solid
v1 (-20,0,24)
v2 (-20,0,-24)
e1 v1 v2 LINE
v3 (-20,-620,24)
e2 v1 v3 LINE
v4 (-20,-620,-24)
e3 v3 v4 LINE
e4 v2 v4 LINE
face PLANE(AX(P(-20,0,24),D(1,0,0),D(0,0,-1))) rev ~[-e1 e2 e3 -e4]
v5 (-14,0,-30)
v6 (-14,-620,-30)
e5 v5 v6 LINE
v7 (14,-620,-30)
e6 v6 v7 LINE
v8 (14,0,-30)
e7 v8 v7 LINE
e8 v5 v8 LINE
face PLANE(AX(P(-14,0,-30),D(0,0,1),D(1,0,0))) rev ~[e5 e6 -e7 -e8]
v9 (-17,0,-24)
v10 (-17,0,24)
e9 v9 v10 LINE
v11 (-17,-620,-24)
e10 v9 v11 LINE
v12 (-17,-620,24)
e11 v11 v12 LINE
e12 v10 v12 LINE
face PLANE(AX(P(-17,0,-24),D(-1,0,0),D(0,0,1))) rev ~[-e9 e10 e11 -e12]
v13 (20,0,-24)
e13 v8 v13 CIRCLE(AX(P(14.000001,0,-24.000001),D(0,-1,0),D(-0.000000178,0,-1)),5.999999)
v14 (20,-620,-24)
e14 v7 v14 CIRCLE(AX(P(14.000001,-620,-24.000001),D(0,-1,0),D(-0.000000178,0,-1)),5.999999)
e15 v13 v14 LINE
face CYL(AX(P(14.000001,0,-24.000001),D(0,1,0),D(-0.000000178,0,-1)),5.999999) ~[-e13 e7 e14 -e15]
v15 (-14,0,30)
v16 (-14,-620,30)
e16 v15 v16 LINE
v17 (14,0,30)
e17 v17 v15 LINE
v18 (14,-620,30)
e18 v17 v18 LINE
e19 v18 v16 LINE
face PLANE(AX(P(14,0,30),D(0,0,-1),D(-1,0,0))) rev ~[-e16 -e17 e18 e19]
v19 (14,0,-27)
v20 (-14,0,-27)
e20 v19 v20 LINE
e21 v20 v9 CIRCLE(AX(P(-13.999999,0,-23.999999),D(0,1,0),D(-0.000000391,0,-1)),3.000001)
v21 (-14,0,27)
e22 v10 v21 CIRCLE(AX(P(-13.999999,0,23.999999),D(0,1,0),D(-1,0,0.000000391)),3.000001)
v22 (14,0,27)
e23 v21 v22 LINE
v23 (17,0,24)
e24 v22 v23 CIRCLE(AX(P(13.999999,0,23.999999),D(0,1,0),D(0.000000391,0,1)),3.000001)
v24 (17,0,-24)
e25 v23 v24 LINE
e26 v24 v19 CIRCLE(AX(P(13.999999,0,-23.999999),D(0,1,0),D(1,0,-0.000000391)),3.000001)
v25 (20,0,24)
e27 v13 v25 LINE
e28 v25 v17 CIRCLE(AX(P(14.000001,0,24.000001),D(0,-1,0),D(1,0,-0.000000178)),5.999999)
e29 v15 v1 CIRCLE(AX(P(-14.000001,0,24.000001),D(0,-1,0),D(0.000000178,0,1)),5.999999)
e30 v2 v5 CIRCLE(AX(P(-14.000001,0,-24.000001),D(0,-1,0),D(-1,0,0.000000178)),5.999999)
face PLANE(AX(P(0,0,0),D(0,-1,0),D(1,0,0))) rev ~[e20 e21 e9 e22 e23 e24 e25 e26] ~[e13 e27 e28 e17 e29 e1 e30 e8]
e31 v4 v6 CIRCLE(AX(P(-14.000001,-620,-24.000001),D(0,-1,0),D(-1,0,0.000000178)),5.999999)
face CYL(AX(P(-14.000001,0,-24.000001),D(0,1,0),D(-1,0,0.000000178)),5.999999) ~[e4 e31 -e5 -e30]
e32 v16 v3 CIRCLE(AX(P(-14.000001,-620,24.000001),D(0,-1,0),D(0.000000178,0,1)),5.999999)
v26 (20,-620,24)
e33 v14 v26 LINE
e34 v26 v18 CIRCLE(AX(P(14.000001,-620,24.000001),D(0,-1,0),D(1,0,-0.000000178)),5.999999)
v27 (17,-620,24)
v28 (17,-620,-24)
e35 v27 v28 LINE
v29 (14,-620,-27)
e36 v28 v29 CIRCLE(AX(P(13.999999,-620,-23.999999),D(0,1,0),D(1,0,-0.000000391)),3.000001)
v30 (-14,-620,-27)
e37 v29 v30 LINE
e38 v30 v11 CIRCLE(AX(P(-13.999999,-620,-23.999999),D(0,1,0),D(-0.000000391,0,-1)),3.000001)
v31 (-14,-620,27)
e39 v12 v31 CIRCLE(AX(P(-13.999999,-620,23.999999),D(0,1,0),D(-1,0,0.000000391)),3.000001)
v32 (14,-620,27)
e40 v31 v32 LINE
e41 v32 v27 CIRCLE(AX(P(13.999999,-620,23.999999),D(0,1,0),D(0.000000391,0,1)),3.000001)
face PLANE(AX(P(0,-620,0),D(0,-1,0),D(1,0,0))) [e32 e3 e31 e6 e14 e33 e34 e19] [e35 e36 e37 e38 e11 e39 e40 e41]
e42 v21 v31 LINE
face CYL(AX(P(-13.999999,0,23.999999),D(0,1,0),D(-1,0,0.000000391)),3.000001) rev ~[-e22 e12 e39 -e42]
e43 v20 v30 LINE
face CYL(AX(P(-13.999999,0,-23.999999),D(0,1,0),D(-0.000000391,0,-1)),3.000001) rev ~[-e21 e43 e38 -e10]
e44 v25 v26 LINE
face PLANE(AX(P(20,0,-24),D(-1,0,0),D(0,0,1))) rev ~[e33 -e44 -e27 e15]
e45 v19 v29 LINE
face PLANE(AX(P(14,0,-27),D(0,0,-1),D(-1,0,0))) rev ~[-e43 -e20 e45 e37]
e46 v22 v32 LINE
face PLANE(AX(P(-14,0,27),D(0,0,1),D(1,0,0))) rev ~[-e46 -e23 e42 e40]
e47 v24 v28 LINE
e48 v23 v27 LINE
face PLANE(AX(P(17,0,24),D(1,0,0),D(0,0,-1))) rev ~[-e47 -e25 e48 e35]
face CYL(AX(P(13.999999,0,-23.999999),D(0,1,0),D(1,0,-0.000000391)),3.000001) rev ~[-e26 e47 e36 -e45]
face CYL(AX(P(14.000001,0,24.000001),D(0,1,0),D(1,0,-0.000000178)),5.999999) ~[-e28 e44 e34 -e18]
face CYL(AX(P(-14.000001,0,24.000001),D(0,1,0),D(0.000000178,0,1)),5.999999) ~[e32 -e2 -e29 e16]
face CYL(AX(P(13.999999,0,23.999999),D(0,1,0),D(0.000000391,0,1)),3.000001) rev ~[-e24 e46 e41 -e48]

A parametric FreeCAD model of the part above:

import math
import FreeCAD as App
import Part
import Sketcher
Q = App.Units.Quantity

doc = App.newDocument("Part")
body = doc.addObject("PartDesign::Body", "Body")

sketch1 = doc.addObject("Sketcher::SketchObject", "Sketch")
body.addObject(sketch1)
sketch1.AttachmentSupport = (doc.XZ_Plane, [""])
sketch1.MapMode = "FlatFace"
sketch1.addGeometry(Part.LineSegment(App.Vector(14, 30, 0), App.Vector(-14, 30, 0)), False)
sketch1.addGeometry(Part.ArcOfCircle(Part.Circle(App.Vector(-14, 24, 0), App.Vector(0, 0, 1), 6), math.radians(90), math.radians(180)), False)
sketch1.addGeometry(Part.LineSegment(App.Vector(-20, 24, 0), App.Vector(-20, -24, 0)), False)
sketch1.addGeometry(Part.ArcOfCircle(Part.Circle(App.Vector(-14, -24, 0), App.Vector(0, 0, 1), 6), math.radians(180), math.radians(270)), False)
sketch1.addGeometry(Part.LineSegment(App.Vector(-14, -30, 0), App.Vector(14, -30, 0)), False)
sketch1.addGeometry(Part.ArcOfCircle(Part.Circle(App.Vector(14, -24, 0), App.Vector(0, 0, 1), 6), math.radians(-90), math.radians(0)), False)
sketch1.addGeometry(Part.LineSegment(App.Vector(20, -24, 0), App.Vector(20, 24, 0)), False)
sketch1.addGeometry(Part.ArcOfCircle(Part.Circle(App.Vector(14, 24, 0), App.Vector(0, 0, 1), 6), math.radians(0), math.radians(90)), False)
sketch1.addGeometry(Part.ArcOfCircle(Part.Circle(App.Vector(-14, -24, 0), App.Vector(0, 0, 1), 3), math.radians(-180), math.radians(-90)), False)
sketch1.addGeometry(Part.LineSegment(App.Vector(-17, -24, 0), App.Vector(-17, 24, 0)), False)
sketch1.addGeometry(Part.ArcOfCircle(Part.Circle(App.Vector(-14, 24, 0), App.Vector(0, 0, 1), 3), math.radians(90), math.radians(180)), False)
sketch1.addGeometry(Part.LineSegment(App.Vector(-14, 27, 0), App.Vector(14, 27, 0)), False)
sketch1.addGeometry(Part.ArcOfCircle(Part.Circle(App.Vector(14, 24, 0), App.Vector(0, 0, 1), 3), math.radians(0), math.radians(90)), False)
sketch1.addGeometry(Part.LineSegment(App.Vector(17, 24, 0), App.Vector(17, -24, 0)), False)
sketch1.addGeometry(Part.ArcOfCircle(Part.Circle(App.Vector(14, -24, 0), App.Vector(0, 0, 1), 3), math.radians(-90), math.radians(0)), False)
sketch1.addGeometry(Part.LineSegment(App.Vector(14, -27, 0), App.Vector(-14, -27, 0)), False)
sketch1.addConstraint(Sketcher.Constraint("Tangent", 0, 2, 1, 1))
sketch1.addConstraint(Sketcher.Constraint("Tangent", 1, 2, 2, 1))
sketch1.addConstraint(Sketcher.Constraint("Tangent", 2, 2, 3, 1))
sketch1.addConstraint(Sketcher.Constraint("Tangent", 3, 2, 4, 1))
sketch1.addConstraint(Sketcher.Constraint("Tangent", 4, 2, 5, 1))
sketch1.addConstraint(Sketcher.Constraint("Tangent", 5, 2, 6, 1))
sketch1.addConstraint(Sketcher.Constraint("Tangent", 6, 2, 7, 1))
sketch1.addConstraint(Sketcher.Constraint("Tangent", 7, 2, 0, 1))
sketch1.addConstraint(Sketcher.Constraint("Tangent", 8, 1, 9, 1))
sketch1.addConstraint(Sketcher.Constraint("Tangent", 9, 2, 10, 2))
sketch1.addConstraint(Sketcher.Constraint("Tangent", 10, 1, 11, 1))
sketch1.addConstraint(Sketcher.Constraint("Tangent", 11, 2, 12, 2))
sketch1.addConstraint(Sketcher.Constraint("Tangent", 12, 1, 13, 1))
sketch1.addConstraint(Sketcher.Constraint("Tangent", 13, 2, 14, 2))
sketch1.addConstraint(Sketcher.Constraint("Tangent", 14, 1, 15, 1))
sketch1.addConstraint(Sketcher.Constraint("Tangent", 15, 2, 8, 2))
sketch1.addConstraint(Sketcher.Constraint("Horizontal", 0))
sketch1.addConstraint(Sketcher.Constraint("Vertical", 2))
sketch1.addConstraint(Sketcher.Constraint("Horizontal", 4))
sketch1.addConstraint(Sketcher.Constraint("Vertical", 6))
sketch1.addConstraint(Sketcher.Constraint("Vertical", 9))
sketch1.addConstraint(Sketcher.Constraint("Horizontal", 11))
sketch1.addConstraint(Sketcher.Constraint("Vertical", 13))
sketch1.addConstraint(Sketcher.Constraint("Horizontal", 15))
sketch1.addConstraint(Sketcher.Constraint("Coincident", 8, 3, 3, 3))
sketch1.addConstraint(Sketcher.Constraint("Coincident", 10, 3, 1, 3))
sketch1.addConstraint(Sketcher.Constraint("Coincident", 12, 3, 7, 3))
sketch1.addConstraint(Sketcher.Constraint("Equal", 1, 3))
sketch1.addConstraint(Sketcher.Constraint("Equal", 3, 5))
sketch1.addConstraint(Sketcher.Constraint("Equal", 5, 7))
sketch1.addConstraint(Sketcher.Constraint("Equal", 12, 14))
sketch1.addConstraint(Sketcher.Constraint("Symmetric", 1, 3, 5, 3, -1, 1))
sketch1.addConstraint(Sketcher.Constraint("Radius", 1, Q("5.999999 mm")))
sketch1.addConstraint(Sketcher.Constraint("Radius", 8, Q("3.000001 mm")))
sketch1.addConstraint(Sketcher.Constraint("DistanceX", 0, 2, 0, 1, Q("28 mm")))
sketch1.addConstraint(Sketcher.Constraint("DistanceY", 2, 2, 2, 1, Q("48 mm")))
pad1 = doc.addObject("PartDesign::Pad", "Pad")
body.addObject(pad1)
pad1.Profile = sketch1
pad1.Length = 620

doc.recompute()
